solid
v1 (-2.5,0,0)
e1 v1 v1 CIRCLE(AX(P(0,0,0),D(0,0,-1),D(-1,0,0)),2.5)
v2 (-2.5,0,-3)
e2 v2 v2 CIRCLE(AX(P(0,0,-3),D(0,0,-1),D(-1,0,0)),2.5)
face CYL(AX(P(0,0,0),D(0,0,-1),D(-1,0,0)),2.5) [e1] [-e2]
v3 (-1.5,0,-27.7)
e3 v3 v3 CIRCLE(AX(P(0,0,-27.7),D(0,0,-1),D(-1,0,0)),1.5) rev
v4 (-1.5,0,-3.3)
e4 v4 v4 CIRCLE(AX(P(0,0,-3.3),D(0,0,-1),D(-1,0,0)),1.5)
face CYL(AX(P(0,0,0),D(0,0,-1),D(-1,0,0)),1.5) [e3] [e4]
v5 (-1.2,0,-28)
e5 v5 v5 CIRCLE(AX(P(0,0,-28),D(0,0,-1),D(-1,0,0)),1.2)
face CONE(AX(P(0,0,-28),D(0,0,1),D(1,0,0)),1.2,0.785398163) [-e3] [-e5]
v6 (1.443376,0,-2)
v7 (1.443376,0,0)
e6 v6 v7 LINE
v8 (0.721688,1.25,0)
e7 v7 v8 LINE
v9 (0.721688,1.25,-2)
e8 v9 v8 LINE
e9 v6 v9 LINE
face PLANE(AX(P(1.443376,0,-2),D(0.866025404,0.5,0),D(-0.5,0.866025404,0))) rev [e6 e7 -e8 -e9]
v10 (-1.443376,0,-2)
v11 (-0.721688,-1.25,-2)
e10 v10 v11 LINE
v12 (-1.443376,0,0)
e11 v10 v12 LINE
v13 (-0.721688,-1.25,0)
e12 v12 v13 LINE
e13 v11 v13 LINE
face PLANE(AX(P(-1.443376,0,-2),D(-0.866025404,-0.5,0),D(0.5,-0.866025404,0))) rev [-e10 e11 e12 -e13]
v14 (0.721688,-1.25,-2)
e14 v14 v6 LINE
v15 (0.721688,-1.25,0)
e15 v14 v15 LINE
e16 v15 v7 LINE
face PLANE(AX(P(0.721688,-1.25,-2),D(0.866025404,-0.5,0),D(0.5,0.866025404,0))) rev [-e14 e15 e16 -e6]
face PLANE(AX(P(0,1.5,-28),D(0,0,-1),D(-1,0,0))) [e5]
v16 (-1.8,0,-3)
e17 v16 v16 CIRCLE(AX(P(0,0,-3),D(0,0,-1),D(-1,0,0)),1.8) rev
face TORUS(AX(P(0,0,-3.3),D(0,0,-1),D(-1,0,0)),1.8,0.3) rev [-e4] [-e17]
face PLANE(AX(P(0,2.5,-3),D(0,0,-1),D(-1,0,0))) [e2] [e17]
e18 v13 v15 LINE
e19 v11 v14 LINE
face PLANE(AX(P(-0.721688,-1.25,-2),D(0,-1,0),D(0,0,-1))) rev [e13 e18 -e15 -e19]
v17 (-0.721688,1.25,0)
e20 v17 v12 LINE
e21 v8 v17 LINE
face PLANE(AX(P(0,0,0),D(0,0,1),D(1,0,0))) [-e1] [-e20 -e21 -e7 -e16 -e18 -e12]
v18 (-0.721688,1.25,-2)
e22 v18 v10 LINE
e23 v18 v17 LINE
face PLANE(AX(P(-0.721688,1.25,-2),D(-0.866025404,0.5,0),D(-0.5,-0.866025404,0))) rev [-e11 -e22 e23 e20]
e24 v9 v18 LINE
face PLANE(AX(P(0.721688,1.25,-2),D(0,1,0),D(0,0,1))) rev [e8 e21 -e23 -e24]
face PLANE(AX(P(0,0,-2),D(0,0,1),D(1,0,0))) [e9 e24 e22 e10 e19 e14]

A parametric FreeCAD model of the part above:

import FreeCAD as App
import Part
import Sketcher
Q = App.Units.Quantity


def edges_at(feature, points):
    """Names of the edges that pass closest to the given points."""
    edges = feature.Shape.Edges
    near = lambda p: min(range(len(edges)), key=lambda i: edges[i].distToShape(Part.Vertex(*p))[0])
    return sorted({f"Edge{near(p) + 1}" for p in points})

doc = App.newDocument("Part")
params = doc.addObject("Spreadsheet::Sheet", "Params")
for row, (alias, value) in enumerate([
    ("sketch1_width", "1 mm"),
    ("sketch1_height", "28 mm"),
    ("sketch1_height2", "25 mm"),
    ("sketch1_width2", "2.5 mm"),
    ("revolution_angle", "360 deg"),
    ("pocket1_length", "2 mm"),
    ("fillet_radius", "0.3 mm"),
    ("chamfer_size", "0.3 mm"),
], start=1):
    params.set(f"A{row}", alias)
    params.set(f"B{row}", "=" + value)
    params.setAlias(f"B{row}", alias)

body = doc.addObject("PartDesign::Body", "Body")

sketch1 = doc.addObject("Sketcher::SketchObject", "Sketch")
body.addObject(sketch1)
sketch1.AttachmentSupport = (doc.YZ_Plane, [""])
sketch1.MapMode = "FlatFace"
sketch1.addGeometry([
    Part.LineSegment(App.Vector(2.5, 0, 0), App.Vector(0, 0, 0)),
    Part.LineSegment(App.Vector(0, 0, 0), App.Vector(0, -28, 0)),
    Part.LineSegment(App.Vector(0, -28, 0), App.Vector(1.5, -28, 0)),
    Part.LineSegment(App.Vector(1.5, -28, 0), App.Vector(1.5, -3, 0)),
    Part.LineSegment(App.Vector(1.5, -3, 0), App.Vector(2.5, -3, 0)),
    Part.LineSegment(App.Vector(2.5, -3, 0), App.Vector(2.5, 0, 0)),
], False)
sketch1.addConstraint([
    Sketcher.Constraint("Coincident", 0, 2, 1, 1),
    Sketcher.Constraint("Coincident", 1, 2, 2, 1),
    Sketcher.Constraint("Coincident", 2, 2, 3, 1),
    Sketcher.Constraint("Coincident", 3, 2, 4, 1),
    Sketcher.Constraint("Coincident", 4, 2, 5, 1),
    Sketcher.Constraint("Coincident", 5, 2, 0, 1),
    Sketcher.Constraint("Horizontal", 0),
    Sketcher.Constraint("Vertical", 1),
    Sketcher.Constraint("Horizontal", 2),
    Sketcher.Constraint("Vertical", 3),
    Sketcher.Constraint("Horizontal", 4),
    Sketcher.Constraint("Vertical", 5),
    Sketcher.Constraint("Coincident", 0, 2, -1, 1),
    Sketcher.Constraint("DistanceX", 4, 1, 4, 2, Q("1 mm")),
    Sketcher.Constraint("DistanceY", 1, 2, 1, 1, Q("28 mm")),
    Sketcher.Constraint("DistanceY", 3, 1, 3, 2, Q("25 mm")),
    Sketcher.Constraint("DistanceX", 0, 2, 0, 1, Q("2.5 mm")),
])
sketch1.setExpression("Constraints[13]", "Params.sketch1_width")
sketch1.setExpression("Constraints[14]", "Params.sketch1_height")
sketch1.setExpression("Constraints[15]", "Params.sketch1_height2")
sketch1.setExpression("Constraints[16]", "Params.sketch1_width2")
revolution = doc.addObject("PartDesign::Revolution", "Revolution")
body.addObject(revolution)
revolution.Profile = sketch1
revolution.ReferenceAxis = (sketch1, ["V_Axis"])
revolution.setExpression("Angle", "Params.revolution_angle")

sketch2 = doc.addObject("Sketcher::SketchObject", "Sketch001")
body.addObject(sketch2)
sketch2.AttachmentSupport = (doc.XY_Plane, [""])
sketch2.MapMode = "FlatFace"
sketch2.addGeometry([
    Part.LineSegment(App.Vector(1.443376, 0, 0), App.Vector(0.721688, 1.25, 0)),
    Part.LineSegment(App.Vector(0.721688, 1.25, 0), App.Vector(-0.721688, 1.25, 0)),
    Part.LineSegment(App.Vector(-0.721688, 1.25, 0), App.Vector(-1.443376, 0, 0)),
    Part.LineSegment(App.Vector(-1.443376, 0, 0), App.Vector(-0.721688, -1.25, 0)),
    Part.LineSegment(App.Vector(-0.721688, -1.25, 0), App.Vector(0.721688, -1.25, 0)),
    Part.LineSegment(App.Vector(0.721688, -1.25, 0), App.Vector(1.443376, 0, 0)),
], False)
sketch2.addConstraint([
    Sketcher.Constraint("Coincident", 0, 2, 1, 1),
    Sketcher.Constraint("Coincident", 1, 2, 2, 1),
    Sketcher.Constraint("Coincident", 2, 2, 3, 1),
    Sketcher.Constraint("Coincident", 3, 2, 4, 1),
    Sketcher.Constraint("Coincident", 4, 2, 5, 1),
    Sketcher.Constraint("Coincident", 5, 2, 0, 1),
    Sketcher.Constraint("Horizontal", 1),
    Sketcher.Constraint("Horizontal", 4),
    Sketcher.Constraint("Symmetric", 0, 2, 3, 2, -1, 1),
    Sketcher.Constraint("Symmetric", 2, 2, 5, 2, -1, 1),
    Sketcher.Constraint("PointOnObject", 2, 2, -1),
    Sketcher.Constraint("Parallel", 2, 5),
    Sketcher.Constraint("Vertical", 1, 2, 3, 2),
    Sketcher.Constraint("Angle", 0, Q("120 deg")),
    Sketcher.Constraint("DistanceY", 3, 2, 1, 2, Q("2.5 mm")),
    Sketcher.Constraint("DistanceX", 1, 2, 1, 1, Q("1.443376 mm")),
])
pocket1 = doc.addObject("PartDesign::Pocket", "Pocket")
body.addObject(pocket1)
pocket1.Profile = sketch2
pocket1.setExpression("Length", "Params.pocket1_length")
doc.recompute()

fillet = doc.addObject("PartDesign::Fillet", "Fillet")
body.addObject(fillet)
fillet.Base = (pocket1, edges_at(pocket1, [(0, -1.5, -3)]))
fillet.setExpression("Radius", "Params.fillet_radius")
doc.recompute()

chamfer = doc.addObject("PartDesign::Chamfer", "Chamfer")
body.addObject(chamfer)
chamfer.Base = (fillet, edges_at(fillet, [(0, -1.5, -28)]))
chamfer.setExpression("Size", "Params.chamfer_size")

doc.recompute()
